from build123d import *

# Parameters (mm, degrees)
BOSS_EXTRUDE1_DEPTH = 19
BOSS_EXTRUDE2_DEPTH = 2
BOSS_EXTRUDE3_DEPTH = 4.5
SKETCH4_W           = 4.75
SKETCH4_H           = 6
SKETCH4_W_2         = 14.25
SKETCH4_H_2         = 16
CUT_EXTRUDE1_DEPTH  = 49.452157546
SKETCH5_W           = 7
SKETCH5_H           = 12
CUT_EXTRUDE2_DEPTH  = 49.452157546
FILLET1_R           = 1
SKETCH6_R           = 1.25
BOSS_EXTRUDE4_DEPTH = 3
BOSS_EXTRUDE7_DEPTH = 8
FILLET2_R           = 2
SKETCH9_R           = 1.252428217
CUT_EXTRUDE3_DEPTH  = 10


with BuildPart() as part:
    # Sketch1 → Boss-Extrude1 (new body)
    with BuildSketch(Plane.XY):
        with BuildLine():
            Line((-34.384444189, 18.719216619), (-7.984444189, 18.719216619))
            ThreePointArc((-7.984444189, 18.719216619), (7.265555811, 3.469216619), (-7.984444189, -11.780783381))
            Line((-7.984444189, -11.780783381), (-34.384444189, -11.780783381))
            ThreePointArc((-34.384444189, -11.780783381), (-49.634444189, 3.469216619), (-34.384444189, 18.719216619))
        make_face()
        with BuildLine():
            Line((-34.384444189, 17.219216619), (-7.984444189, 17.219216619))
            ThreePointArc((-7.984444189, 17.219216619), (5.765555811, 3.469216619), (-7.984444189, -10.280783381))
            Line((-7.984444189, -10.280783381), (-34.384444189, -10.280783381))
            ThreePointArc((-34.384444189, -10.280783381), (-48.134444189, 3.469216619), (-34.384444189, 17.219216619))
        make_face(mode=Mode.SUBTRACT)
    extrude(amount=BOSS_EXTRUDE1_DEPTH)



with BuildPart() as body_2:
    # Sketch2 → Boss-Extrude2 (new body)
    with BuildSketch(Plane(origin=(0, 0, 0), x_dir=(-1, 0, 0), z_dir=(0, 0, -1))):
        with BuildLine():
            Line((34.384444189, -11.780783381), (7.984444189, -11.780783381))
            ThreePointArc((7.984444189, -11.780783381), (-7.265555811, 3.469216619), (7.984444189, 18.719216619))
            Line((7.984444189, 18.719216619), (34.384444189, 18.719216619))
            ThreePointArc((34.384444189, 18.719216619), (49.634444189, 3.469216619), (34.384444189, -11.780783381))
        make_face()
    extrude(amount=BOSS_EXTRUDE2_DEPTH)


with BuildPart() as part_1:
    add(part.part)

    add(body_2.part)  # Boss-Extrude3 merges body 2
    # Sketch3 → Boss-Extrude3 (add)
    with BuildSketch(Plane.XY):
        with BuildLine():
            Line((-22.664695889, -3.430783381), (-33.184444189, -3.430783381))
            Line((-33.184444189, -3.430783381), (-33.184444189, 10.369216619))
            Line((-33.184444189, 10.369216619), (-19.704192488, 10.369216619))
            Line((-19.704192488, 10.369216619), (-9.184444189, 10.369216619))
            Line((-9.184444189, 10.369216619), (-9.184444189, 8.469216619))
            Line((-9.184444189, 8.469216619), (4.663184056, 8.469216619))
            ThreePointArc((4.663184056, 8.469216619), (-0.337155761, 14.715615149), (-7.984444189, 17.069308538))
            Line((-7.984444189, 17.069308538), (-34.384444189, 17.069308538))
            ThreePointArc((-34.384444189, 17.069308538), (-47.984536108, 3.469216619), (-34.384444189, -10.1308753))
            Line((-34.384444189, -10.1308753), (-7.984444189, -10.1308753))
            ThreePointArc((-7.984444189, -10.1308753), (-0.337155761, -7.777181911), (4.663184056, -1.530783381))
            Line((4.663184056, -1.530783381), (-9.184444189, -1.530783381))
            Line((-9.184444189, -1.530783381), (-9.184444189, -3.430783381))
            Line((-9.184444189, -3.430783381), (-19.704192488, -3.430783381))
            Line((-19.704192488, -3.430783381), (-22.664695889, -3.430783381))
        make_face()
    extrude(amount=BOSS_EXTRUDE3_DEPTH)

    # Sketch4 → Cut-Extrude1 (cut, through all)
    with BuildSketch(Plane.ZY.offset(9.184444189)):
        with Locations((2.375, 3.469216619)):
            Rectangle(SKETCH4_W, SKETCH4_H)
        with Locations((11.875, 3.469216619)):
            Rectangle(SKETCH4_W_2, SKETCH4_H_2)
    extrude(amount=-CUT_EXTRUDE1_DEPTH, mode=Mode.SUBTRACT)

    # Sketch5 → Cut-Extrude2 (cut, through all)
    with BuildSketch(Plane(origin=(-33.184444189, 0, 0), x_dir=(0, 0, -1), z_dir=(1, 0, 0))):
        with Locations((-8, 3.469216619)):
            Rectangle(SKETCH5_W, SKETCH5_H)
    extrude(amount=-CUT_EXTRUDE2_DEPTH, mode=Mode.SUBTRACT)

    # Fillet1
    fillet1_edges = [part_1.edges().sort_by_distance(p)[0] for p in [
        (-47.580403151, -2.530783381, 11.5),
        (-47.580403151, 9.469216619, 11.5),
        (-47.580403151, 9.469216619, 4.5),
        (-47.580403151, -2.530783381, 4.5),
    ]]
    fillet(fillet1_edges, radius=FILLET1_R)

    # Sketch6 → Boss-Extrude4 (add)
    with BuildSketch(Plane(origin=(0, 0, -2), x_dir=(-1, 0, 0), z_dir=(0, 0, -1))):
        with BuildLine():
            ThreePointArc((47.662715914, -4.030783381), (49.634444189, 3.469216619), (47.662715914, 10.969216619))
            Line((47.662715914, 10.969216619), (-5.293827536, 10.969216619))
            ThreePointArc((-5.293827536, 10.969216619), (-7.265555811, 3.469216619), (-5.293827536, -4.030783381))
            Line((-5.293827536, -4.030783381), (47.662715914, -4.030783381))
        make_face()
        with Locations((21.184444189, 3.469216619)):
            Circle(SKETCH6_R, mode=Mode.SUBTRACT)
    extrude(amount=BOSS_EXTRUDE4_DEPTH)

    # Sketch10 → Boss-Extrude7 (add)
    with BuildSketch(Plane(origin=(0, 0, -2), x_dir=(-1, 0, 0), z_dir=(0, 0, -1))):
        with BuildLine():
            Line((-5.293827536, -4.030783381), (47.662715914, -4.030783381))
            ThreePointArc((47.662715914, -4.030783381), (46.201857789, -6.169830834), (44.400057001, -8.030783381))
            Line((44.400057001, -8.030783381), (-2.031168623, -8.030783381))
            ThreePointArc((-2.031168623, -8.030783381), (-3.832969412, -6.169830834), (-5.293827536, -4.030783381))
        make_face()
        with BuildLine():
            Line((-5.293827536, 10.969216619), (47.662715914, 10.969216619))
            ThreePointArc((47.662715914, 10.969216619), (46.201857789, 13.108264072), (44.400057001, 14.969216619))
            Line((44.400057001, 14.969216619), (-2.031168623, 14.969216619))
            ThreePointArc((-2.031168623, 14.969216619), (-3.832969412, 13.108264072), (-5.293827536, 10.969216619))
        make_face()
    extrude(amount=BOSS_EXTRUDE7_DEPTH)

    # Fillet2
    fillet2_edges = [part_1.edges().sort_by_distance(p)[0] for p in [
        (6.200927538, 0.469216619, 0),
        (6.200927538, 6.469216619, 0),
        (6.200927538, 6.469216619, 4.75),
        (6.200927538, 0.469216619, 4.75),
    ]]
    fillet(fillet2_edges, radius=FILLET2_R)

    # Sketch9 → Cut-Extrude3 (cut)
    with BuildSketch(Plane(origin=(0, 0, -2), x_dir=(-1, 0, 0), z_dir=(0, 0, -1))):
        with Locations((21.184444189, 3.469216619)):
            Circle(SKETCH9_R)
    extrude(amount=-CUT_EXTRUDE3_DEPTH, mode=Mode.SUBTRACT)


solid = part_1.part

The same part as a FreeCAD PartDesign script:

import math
import FreeCAD as App
import Part
import Sketcher


def edges_at(feature, points):
    """Names of the edges that pass closest to the given points."""
    edges = feature.Shape.Edges
    near = lambda p: min(range(len(edges)), key=lambda i: edges[i].distToShape(Part.Vertex(*p))[0])
    return sorted({f"Edge{near(p) + 1}" for p in points})

doc = App.newDocument("Part")
body = doc.addObject("PartDesign::Body", "Body")

# Sketch on XY plane
sketch1 = doc.addObject("Sketcher::SketchObject", "Sketch")
body.addObject(sketch1)
sketch1.AttachmentSupport = (doc.XY_Plane, [""])
sketch1.MapMode = "FlatFace"
sketch1.addGeometry([
    Part.LineSegment(App.Vector(-8, 19, 0), App.Vector(-34, 19, 0)),  # 0
    Part.ArcOfCircle(Part.Circle(App.Vector(-34, 3, 0), App.Vector(0, 0, 1), 15), math.radians(90), math.radians(270)),  # 1
    Part.LineSegment(App.Vector(-34, -12, 0), App.Vector(-8, -12, 0)),  # 2
    Part.ArcOfCircle(Part.Circle(App.Vector(-8, 3, 0), App.Vector(0, 0, 1), 15), math.radians(-90), math.radians(90)),  # 3
    Part.LineSegment(App.Vector(-34, 17, 0), App.Vector(-8, 17, 0)),  # 4
    Part.ArcOfCircle(Part.Circle(App.Vector(-8, 3, 0), App.Vector(0, 0, 1), 14), math.radians(-90), math.radians(90)),  # 5
    Part.LineSegment(App.Vector(-8, -10, 0), App.Vector(-34, -10, 0)),  # 6
    Part.ArcOfCircle(Part.Circle(App.Vector(-34, 3, 0), App.Vector(0, 0, 1), 14), math.radians(90), math.radians(270)),  # 7
], False)
sketch1.addConstraint([
    Sketcher.Constraint("Tangent", 0, 2, 1, 1),
    Sketcher.Constraint("Tangent", 1, 2, 2, 1),
    Sketcher.Constraint("Tangent", 2, 2, 3, 1),
    Sketcher.Constraint("Tangent", 3, 2, 0, 1),
    Sketcher.Constraint("Tangent", 4, 2, 5, 2),
    Sketcher.Constraint("Tangent", 5, 1, 6, 1),
    Sketcher.Constraint("Tangent", 6, 2, 7, 2),
    Sketcher.Constraint("Tangent", 7, 1, 4, 1),
    Sketcher.Constraint("Horizontal", 0),
    Sketcher.Constraint("Horizontal", 2),
    Sketcher.Constraint("Horizontal", 4),
    Sketcher.Constraint("Horizontal", 6),
    Sketcher.Constraint("Coincident", 5, 3, 3, 3),
    Sketcher.Constraint("Vertical", 7, 3, 0, 2),
    Sketcher.Constraint("Radius", 1, 15.25),
    Sketcher.Constraint("Radius", 5, 13.75),
    Sketcher.Constraint("DistanceX", 0, 2, 0, 1, 26.4),
    Sketcher.Constraint("DistanceX", 1, 3, -1, 1, 34.384444),
    Sketcher.Constraint("DistanceY", -1, 1, 1, 3, 3.469217),
])
pad1 = doc.addObject("PartDesign::Pad", "Pad")
body.addObject(pad1)
pad1.Profile = sketch1
pad1.Length = 19
body2 = doc.addObject("PartDesign::Body", "Body001")

# Sketch on XY plane
sketch2 = doc.addObject("Sketcher::SketchObject", "Sketch001")
body2.addObject(sketch2)
sketch2.AttachmentSupport = (doc.getObject("XY_Plane001"), [""])
sketch2.MapMode = "FlatFace"
sketch2.addGeometry([
    Part.LineSegment(App.Vector(-8, -12, 0), App.Vector(-34, -12, 0)),
    Part.ArcOfCircle(Part.Circle(App.Vector(-34, 3, 0), App.Vector(0, 0, 1), 15), math.radians(90), math.radians(270)),
    Part.LineSegment(App.Vector(-34, 19, 0), App.Vector(-8, 19, 0)),
    Part.ArcOfCircle(Part.Circle(App.Vector(-8, 3, 0), App.Vector(0, 0, 1), 15), math.radians(-90), math.radians(90)),
], False)
sketch2.addConstraint([
    Sketcher.Constraint("Tangent", 0, 2, 1, 2),
    Sketcher.Constraint("Tangent", 1, 1, 2, 1),
    Sketcher.Constraint("Tangent", 2, 2, 3, 2),
    Sketcher.Constraint("Tangent", 3, 1, 0, 1),
    Sketcher.Constraint("Horizontal", 0),
    Sketcher.Constraint("Horizontal", 2),
    Sketcher.Constraint("Radius", 1, 15.25),
    Sketcher.Constraint("DistanceX", 0, 2, 0, 1, 26.4),
    Sketcher.Constraint("DistanceX", 1, 3, -1, 1, 34.384444),
    Sketcher.Constraint("DistanceY", -1, 1, 1, 3, 3.469217),
])
pad2 = doc.addObject("PartDesign::Pad", "Pad001")
body2.addObject(pad2)
pad2.Profile = sketch2
pad2.Length = 2
pad2.Reversed = True
doc.recompute()

boolean = doc.addObject("PartDesign::Boolean", "Boolean")
body.addObject(boolean)
boolean.Type = "Fuse"
boolean.addObjects([body2])

# Sketch on XY plane
sketch3 = doc.addObject("Sketcher::SketchObject", "Sketch002")
body.addObject(sketch3)
sketch3.AttachmentSupport = (doc.XY_Plane, [""])
sketch3.MapMode = "FlatFace"
sketch3.addGeometry([
    Part.LineSegment(App.Vector(-33.2, -3.4, 0), App.Vector(-33.2, 10.4, 0)),  # 0
    Part.LineSegment(App.Vector(-33.2, 10.4, 0), App.Vector(-9.2, 10.4, 0)),  # 1
    Part.LineSegment(App.Vector(-9.2, 10.4, 0), App.Vector(-9.2, 8.5, 0)),  # 2
    Part.LineSegment(App.Vector(-9.2, 8.5, 0), App.Vector(4.7, 8.5, 0)),  # 3
    Part.ArcOfCircle(Part.Circle(App.Vector(-8, 3.5, 0), App.Vector(0, 0, 1), 13.6), math.radians(22), math.radians(90)),  # 4
    Part.LineSegment(App.Vector(-8, 17.1, 0), App.Vector(-34.4, 17.1, 0)),  # 5
    Part.ArcOfCircle(Part.Circle(App.Vector(-34.4, 3.5, 0), App.Vector(0, 0, 1), 13.6), math.radians(90), math.radians(270)),  # 6
    Part.LineSegment(App.Vector(-34.4, -10.1, 0), App.Vector(-8, -10.1, 0)),  # 7
    Part.ArcOfCircle(Part.Circle(App.Vector(-8, 3.5, 0), App.Vector(0, 0, 1), 13.6), math.radians(-90), math.radians(-22)),  # 8
    Part.LineSegment(App.Vector(4.7, -1.5, 0), App.Vector(-9.2, -1.5, 0)),  # 9
    Part.LineSegment(App.Vector(-9.2, -1.5, 0), App.Vector(-9.2, -3.4, 0)),  # 10
    Part.LineSegment(App.Vector(-9.2, -3.4, 0), App.Vector(-33.2, -3.4, 0)),  # 11
], False)
sketch3.addConstraint([
    Sketcher.Constraint("Coincident", 0, 2, 1, 1),
    Sketcher.Constraint("Coincident", 1, 2, 2, 1),
    Sketcher.Constraint("Coincident", 2, 2, 3, 1),
    Sketcher.Constraint("Coincident", 3, 2, 4, 1),
    Sketcher.Constraint("Tangent", 4, 2, 5, 1),
    Sketcher.Constraint("Tangent", 5, 2, 6, 1),
    Sketcher.Constraint("Tangent", 6, 2, 7, 1),
    Sketcher.Constraint("Tangent", 7, 2, 8, 1),
    Sketcher.Constraint("Coincident", 8, 2, 9, 1),
    Sketcher.Constraint("Coincident", 9, 2, 10, 1),
    Sketcher.Constraint("Coincident", 10, 2, 11, 1),
    Sketcher.Constraint("Coincident", 11, 2, 0, 1),
    Sketcher.Constraint("Vertical", 0),
    Sketcher.Constraint("Horizontal", 1),
    Sketcher.Constraint("Vertical", 2),
    Sketcher.Constraint("Horizontal", 3),
    Sketcher.Constraint("Horizontal", 5),
    Sketcher.Constraint("Horizontal", 7),
    Sketcher.Constraint("Horizontal", 9),
    Sketcher.Constraint("Vertical", 10),
    Sketcher.Constraint("Horizontal", 11),
    Sketcher.Constraint("Coincident", 8, 3, 4, 3),
    Sketcher.Constraint("Equal", 4, 6),
    Sketcher.Constraint("Vertical", 3, 2, 8, 2),
    Sketcher.Constraint("Vertical", 2, 2, 9, 2),
    Sketcher.Constraint("Equal", 2, 10),
    Sketcher.Constraint("DistanceX", 1, 1, 1, 2, 24.0),
    Sketcher.Constraint("DistanceX", 5, 2, 5, 1, 26.4),
    Sketcher.Constraint("DistanceY", 0, 1, 0, 2, 13.8),
    Sketcher.Constraint("DistanceY", 2, 2, 2, 1, 1.9),
    Sketcher.Constraint("DistanceX", 6, 3, 0, 2, 1.2),
    Sketcher.Constraint("Radius", 4, 13.600092),
    Sketcher.Constraint("DistanceY", -1, 1, 4, 2, 17.069309),
    Sketcher.Constraint("DistanceX", 4, 3, -1, 1, 7.984444),
])
pad3 = doc.addObject("PartDesign::Pad", "Pad002")
body.addObject(pad3)
pad3.Profile = sketch3
pad3.Length = 4.5

# Sketch on YZ plane
sketch4 = doc.addObject("Sketcher::SketchObject", "Sketch003")
body.addObject(sketch4)
sketch4.AttachmentSupport = (doc.YZ_Plane, [""])
sketch4.MapMode = "FlatFace"
sketch4.AttachmentOffset = App.Placement(App.Vector(0, 0, -9.184444), App.Rotation())
sketch4.addGeometry([
    Part.LineSegment(App.Vector(6.5, 0, 0), App.Vector(0.5, 0, 0)),  # 0
    Part.LineSegment(App.Vector(0.5, 0, 0), App.Vector(0.5, 4.8, 0)),  # 1
    Part.LineSegment(App.Vector(0.5, 4.8, 0), App.Vector(-4.5, 4.8, 0)),  # 2
    Part.LineSegment(App.Vector(-4.5, 4.8, 0), App.Vector(-4.5, 19, 0)),  # 3
    Part.LineSegment(App.Vector(-4.5, 19, 0), App.Vector(11.5, 19, 0)),  # 4
    Part.LineSegment(App.Vector(11.5, 19, 0), App.Vector(11.5, 4.8, 0)),  # 5
    Part.LineSegment(App.Vector(11.5, 4.8, 0), App.Vector(6.5, 4.8, 0)),  # 6
    Part.LineSegment(App.Vector(6.5, 4.8, 0), App.Vector(6.5, 0, 0)),  # 7
], False)
sketch4.addConstraint([
    Sketcher.Constraint("Coincident", 0, 2, 1, 1),
    Sketcher.Constraint("Coincident", 1, 2, 2, 1),
    Sketcher.Constraint("Coincident", 2, 2, 3, 1),
    Sketcher.Constraint("Coincident", 3, 2, 4, 1),
    Sketcher.Constraint("Coincident", 4, 2, 5, 1),
    Sketcher.Constraint("Coincident", 5, 2, 6, 1),
    Sketcher.Constraint("Coincident", 6, 2, 7, 1),
    Sketcher.Constraint("Coincident", 7, 2, 0, 1),
    Sketcher.Constraint("Horizontal", 0),
    Sketcher.Constraint("Vertical", 1),
    Sketcher.Constraint("Horizontal", 2),
    Sketcher.Constraint("Vertical", 3),
    Sketcher.Constraint("Horizontal", 4),
    Sketcher.Constraint("Vertical", 5),
    Sketcher.Constraint("Horizontal", 6),
    Sketcher.Constraint("Vertical", 7),
    Sketcher.Constraint("PointOnObject", 0, 2, -1),
    Sketcher.Constraint("Horizontal", 2, 2, 5, 2),
    Sketcher.Constraint("Equal", 2, 6),
    Sketcher.Constraint("DistanceX", 0, 2, 0, 1, 6.0),
    Sketcher.Constraint("DistanceX", 2, 2, 2, 1, 5.0),
    Sketcher.Constraint("DistanceY", -1, 1, 3, 2, 19.0),
    Sketcher.Constraint("DistanceY", 1, 1, 1, 2, 4.75),
    Sketcher.Constraint("DistanceX", -1, 1, 0, 2, 0.469217),
])
pocket1 = doc.addObject("PartDesign::Pocket", "Pocket")
body.addObject(pocket1)
pocket1.Profile = sketch4
pocket1.Type = "ThroughAll"
pocket1.Reversed = True

# Sketch on YZ plane
sketch5 = doc.addObject("Sketcher::SketchObject", "Sketch004")
body.addObject(sketch5)
sketch5.AttachmentSupport = (doc.YZ_Plane, [""])
sketch5.MapMode = "FlatFace"
sketch5.AttachmentOffset = App.Placement(App.Vector(0, 0, -33.184444), App.Rotation())
sketch5.addGeometry([
    Part.LineSegment(App.Vector(9, 12, 0), App.Vector(-3, 12, 0)),
    Part.LineSegment(App.Vector(-3, 12, 0), App.Vector(-3, 4, 0)),
    Part.LineSegment(App.Vector(-3, 4, 0), App.Vector(9, 4, 0)),
    Part.LineSegment(App.Vector(9, 4, 0), App.Vector(9, 12, 0)),
], False)
sketch5.addConstraint([
    Sketcher.Constraint("Coincident", 0, 2, 1, 1),
    Sketcher.Constraint("Coincident", 1, 2, 2, 1),
    Sketcher.Constraint("Coincident", 2, 2, 3, 1),
    Sketcher.Constraint("Coincident", 3, 2, 0, 1),
    Sketcher.Constraint("Horizontal", 0),
    Sketcher.Constraint("Vertical", 1),
    Sketcher.Constraint("Horizontal", 2),
    Sketcher.Constraint("Vertical", 3),
    Sketcher.Constraint("DistanceX", 0, 2, 0, 1, 12.0),
    Sketcher.Constraint("DistanceY", 1, 2, 1, 1, 7.0),
    Sketcher.Constraint("DistanceY", -1, 1, 0, 2, 11.5),
    Sketcher.Constraint("DistanceX", 0, 2, -1, 1, 2.530783),
])
pocket2 = doc.addObject("PartDesign::Pocket", "Pocket001")
body.addObject(pocket2)
pocket2.Profile = sketch5
pocket2.Type = "ThroughAll"
doc.recompute()

fillet = doc.addObject("PartDesign::Fillet", "Fillet")
body.addObject(fillet)
fillet.Base = (pocket2, edges_at(pocket2, [
    (-47.58, -2.531, 11.5),
    (-47.58, 9.469, 11.5),
    (-47.58, 9.469, 4.5),
    (-47.58, -2.531, 4.5),
]))
fillet.Radius = 1

# Sketch on XY plane
sketch6 = doc.addObject("Sketcher::SketchObject", "Sketch005")
body.addObject(sketch6)
sketch6.AttachmentSupport = (doc.XY_Plane, [""])
sketch6.MapMode = "FlatFace"
sketch6.AttachmentOffset = App.Placement(App.Vector(0, 0, -2), App.Rotation())
sketch6.addGeometry([
    Part.ArcOfCircle(Part.Circle(App.Vector(-34.4, 3.5, 0), App.Vector(0, 0, 1), 15.3), math.radians(151), math.radians(209)),  # 0
    Part.LineSegment(App.Vector(-47.7, 11, 0), App.Vector(5.3, 11, 0)),  # 1
    Part.ArcOfCircle(Part.Circle(App.Vector(-8, 3.5, 0), App.Vector(0, 0, 1), 15.3), math.radians(-29), math.radians(29)),  # 2
    Part.LineSegment(App.Vector(5.3, -4, 0), App.Vector(-47.7, -4, 0)),  # 3
    Part.Circle(App.Vector(-21.2, 3.5, 0), App.Vector(0, 0, 1), 1.2),  # 4
], False)
sketch6.addConstraint([
    Sketcher.Constraint("Coincident", 0, 1, 1, 1),
    Sketcher.Constraint("Coincident", 1, 2, 2, 2),
    Sketcher.Constraint("Coincident", 2, 1, 3, 1),
    Sketcher.Constraint("Coincident", 3, 2, 0, 2),
    Sketcher.Constraint("Horizontal", 1),
    Sketcher.Constraint("Horizontal", 3),
    Sketcher.Constraint("Equal", 0, 2),
    Sketcher.Constraint("Horizontal", 0, 3, 2, 3),
    Sketcher.Constraint("Horizontal", 2, 3, 4, 3),
    Sketcher.Constraint("Vertical", 1, 2, 2, 1),
    Sketcher.Constraint("Diameter", 4, 2.5),
    Sketcher.Constraint("Radius", 0, 15.25),
    Sketcher.Constraint("DistanceY", 2, 1, 1, 2, 15.0),
    Sketcher.Constraint("DistanceX", 0, 3, 2, 3, 26.4),
    Sketcher.Constraint("DistanceX", 4, 3, 2, 3, 13.2),
    Sketcher.Constraint("DistanceX", 0, 3, -1, 1, 34.384444),
    Sketcher.Constraint("DistanceY", -1, 1, 0, 3, 3.469217),
])
pad4 = doc.addObject("PartDesign::Pad", "Pad003")
body.addObject(pad4)
pad4.Profile = sketch6
pad4.Length = 3
pad4.Reversed = True

# Sketch on XY plane
sketch7 = doc.addObject("Sketcher::SketchObject", "Sketch006")
body.addObject(sketch7)
sketch7.AttachmentSupport = (doc.XY_Plane, [""])
sketch7.MapMode = "FlatFace"
sketch7.AttachmentOffset = App.Placement(App.Vector(0, 0, -2), App.Rotation())
sketch7.addGeometry([
    Part.LineSegment(App.Vector(-48, -4, 0), App.Vector(5, -4, 0)),  # 0
    Part.ArcOfCircle(Part.Circle(App.Vector(-8, 3, 0), App.Vector(0, 0, 1), 15), math.radians(-48.95), math.radians(-29.46)),  # 1
    Part.LineSegment(App.Vector(2, -8, 0), App.Vector(-44, -8, 0)),  # 2
    Part.ArcOfCircle(Part.Circle(App.Vector(-34, 3, 0), App.Vector(0, 0, 1), 15), math.radians(-150.54), math.radians(-131.05)),  # 3
    Part.LineSegment(App.Vector(5, 11, 0), App.Vector(-48, 11, 0)),  # 4
    Part.ArcOfCircle(Part.Circle(App.Vector(-34, 3, 0), App.Vector(0, 0, 1), 15), math.radians(131.05), math.radians(150.54)),  # 5
    Part.LineSegment(App.Vector(-44, 15, 0), App.Vector(2, 15, 0)),  # 6
    Part.ArcOfCircle(Part.Circle(App.Vector(-8, 3, 0), App.Vector(0, 0, 1), 15), math.radians(29.46), math.radians(48.95)),  # 7
], False)
sketch7.addConstraint([
    Sketcher.Constraint("Coincident", 0, 2, 1, 2),
    Sketcher.Constraint("Coincident", 1, 1, 2, 1),
    Sketcher.Constraint("Coincident", 2, 2, 3, 2),
    Sketcher.Constraint("Coincident", 3, 1, 0, 1),
    Sketcher.Constraint("Coincident", 4, 2, 5, 2),
    Sketcher.Constraint("Coincident", 5, 1, 6, 1),
    Sketcher.Constraint("Coincident", 6, 2, 7, 2),
    Sketcher.Constraint("Coincident", 7, 1, 4, 1),
    Sketcher.Constraint("Horizontal", 0),
    Sketcher.Constraint("Horizontal", 2),
    Sketcher.Constraint("Horizontal", 4),
    Sketcher.Constraint("Horizontal", 6),
    Sketcher.Constraint("Coincident", 5, 3, 3, 3),
    Sketcher.Constraint("Coincident", 7, 3, 1, 3),
    Sketcher.Constraint("Equal", 1, 3),
    Sketcher.Constraint("Equal", 3, 5),
    Sketcher.Constraint("Equal", 5, 7),
    Sketcher.Constraint("Horizontal", 1, 3, 3, 3),
    Sketcher.Constraint("Vertical", 3, 1, 4, 2),
    Sketcher.Constraint("Vertical", 2, 2, 5, 1),
    Sketcher.Constraint("Radius", 1, 15.25),
    Sketcher.Constraint("DistanceY", 1, 1, 0, 2, 4.0),
    Sketcher.Constraint("DistanceY", 3, 1, 4, 2, 15.0),
    Sketcher.Constraint("DistanceX", 3, 3, 1, 3, 26.4),
    Sketcher.Constraint("DistanceX", -1, 1, 1, 1, 2.031169),
    Sketcher.Constraint("DistanceY", -1, 1, 1, 3, 3.469217),
])
pad5 = doc.addObject("PartDesign::Pad", "Pad004")
body.addObject(pad5)
pad5.Profile = sketch7
pad5.Length = 8
pad5.Reversed = True
doc.recompute()

fillet2 = doc.addObject("PartDesign::Fillet", "Fillet001")
body.addObject(fillet2)
fillet2.Base = (pad5, edges_at(pad5, [
    (6.201, 0.469, 0),
    (6.201, 6.469, 0),
    (6.201, 6.469, 4.75),
    (6.201, 0.469, 4.75),
]))
fillet2.Radius = 2

# Sketch on XY plane
sketch8 = doc.addObject("Sketcher::SketchObject", "Sketch007")
body.addObject(sketch8)
sketch8.AttachmentSupport = (doc.XY_Plane, [""])
sketch8.MapMode = "FlatFace"
sketch8.AttachmentOffset = App.Placement(App.Vector(0, 0, -2), App.Rotation())
sketch8.addGeometry(Part.Circle(App.Vector(-21.2, 3.5, 0), App.Vector(0, 0, 1), 1.3), False)
sketch8.addConstraint([
    Sketcher.Constraint("Diameter", 0, 2.504856),
    Sketcher.Constraint("DistanceX", 0, 3, -1, 1, 21.184444),
    Sketcher.Constraint("DistanceY", -1, 1, 0, 3, 3.469217),
])
pocket3 = doc.addObject("PartDesign::Pocket", "Pocket002")
body.addObject(pocket3)
pocket3.Profile = sketch8
pocket3.Length = 10
pocket3.Reversed = True

doc.recompute()
